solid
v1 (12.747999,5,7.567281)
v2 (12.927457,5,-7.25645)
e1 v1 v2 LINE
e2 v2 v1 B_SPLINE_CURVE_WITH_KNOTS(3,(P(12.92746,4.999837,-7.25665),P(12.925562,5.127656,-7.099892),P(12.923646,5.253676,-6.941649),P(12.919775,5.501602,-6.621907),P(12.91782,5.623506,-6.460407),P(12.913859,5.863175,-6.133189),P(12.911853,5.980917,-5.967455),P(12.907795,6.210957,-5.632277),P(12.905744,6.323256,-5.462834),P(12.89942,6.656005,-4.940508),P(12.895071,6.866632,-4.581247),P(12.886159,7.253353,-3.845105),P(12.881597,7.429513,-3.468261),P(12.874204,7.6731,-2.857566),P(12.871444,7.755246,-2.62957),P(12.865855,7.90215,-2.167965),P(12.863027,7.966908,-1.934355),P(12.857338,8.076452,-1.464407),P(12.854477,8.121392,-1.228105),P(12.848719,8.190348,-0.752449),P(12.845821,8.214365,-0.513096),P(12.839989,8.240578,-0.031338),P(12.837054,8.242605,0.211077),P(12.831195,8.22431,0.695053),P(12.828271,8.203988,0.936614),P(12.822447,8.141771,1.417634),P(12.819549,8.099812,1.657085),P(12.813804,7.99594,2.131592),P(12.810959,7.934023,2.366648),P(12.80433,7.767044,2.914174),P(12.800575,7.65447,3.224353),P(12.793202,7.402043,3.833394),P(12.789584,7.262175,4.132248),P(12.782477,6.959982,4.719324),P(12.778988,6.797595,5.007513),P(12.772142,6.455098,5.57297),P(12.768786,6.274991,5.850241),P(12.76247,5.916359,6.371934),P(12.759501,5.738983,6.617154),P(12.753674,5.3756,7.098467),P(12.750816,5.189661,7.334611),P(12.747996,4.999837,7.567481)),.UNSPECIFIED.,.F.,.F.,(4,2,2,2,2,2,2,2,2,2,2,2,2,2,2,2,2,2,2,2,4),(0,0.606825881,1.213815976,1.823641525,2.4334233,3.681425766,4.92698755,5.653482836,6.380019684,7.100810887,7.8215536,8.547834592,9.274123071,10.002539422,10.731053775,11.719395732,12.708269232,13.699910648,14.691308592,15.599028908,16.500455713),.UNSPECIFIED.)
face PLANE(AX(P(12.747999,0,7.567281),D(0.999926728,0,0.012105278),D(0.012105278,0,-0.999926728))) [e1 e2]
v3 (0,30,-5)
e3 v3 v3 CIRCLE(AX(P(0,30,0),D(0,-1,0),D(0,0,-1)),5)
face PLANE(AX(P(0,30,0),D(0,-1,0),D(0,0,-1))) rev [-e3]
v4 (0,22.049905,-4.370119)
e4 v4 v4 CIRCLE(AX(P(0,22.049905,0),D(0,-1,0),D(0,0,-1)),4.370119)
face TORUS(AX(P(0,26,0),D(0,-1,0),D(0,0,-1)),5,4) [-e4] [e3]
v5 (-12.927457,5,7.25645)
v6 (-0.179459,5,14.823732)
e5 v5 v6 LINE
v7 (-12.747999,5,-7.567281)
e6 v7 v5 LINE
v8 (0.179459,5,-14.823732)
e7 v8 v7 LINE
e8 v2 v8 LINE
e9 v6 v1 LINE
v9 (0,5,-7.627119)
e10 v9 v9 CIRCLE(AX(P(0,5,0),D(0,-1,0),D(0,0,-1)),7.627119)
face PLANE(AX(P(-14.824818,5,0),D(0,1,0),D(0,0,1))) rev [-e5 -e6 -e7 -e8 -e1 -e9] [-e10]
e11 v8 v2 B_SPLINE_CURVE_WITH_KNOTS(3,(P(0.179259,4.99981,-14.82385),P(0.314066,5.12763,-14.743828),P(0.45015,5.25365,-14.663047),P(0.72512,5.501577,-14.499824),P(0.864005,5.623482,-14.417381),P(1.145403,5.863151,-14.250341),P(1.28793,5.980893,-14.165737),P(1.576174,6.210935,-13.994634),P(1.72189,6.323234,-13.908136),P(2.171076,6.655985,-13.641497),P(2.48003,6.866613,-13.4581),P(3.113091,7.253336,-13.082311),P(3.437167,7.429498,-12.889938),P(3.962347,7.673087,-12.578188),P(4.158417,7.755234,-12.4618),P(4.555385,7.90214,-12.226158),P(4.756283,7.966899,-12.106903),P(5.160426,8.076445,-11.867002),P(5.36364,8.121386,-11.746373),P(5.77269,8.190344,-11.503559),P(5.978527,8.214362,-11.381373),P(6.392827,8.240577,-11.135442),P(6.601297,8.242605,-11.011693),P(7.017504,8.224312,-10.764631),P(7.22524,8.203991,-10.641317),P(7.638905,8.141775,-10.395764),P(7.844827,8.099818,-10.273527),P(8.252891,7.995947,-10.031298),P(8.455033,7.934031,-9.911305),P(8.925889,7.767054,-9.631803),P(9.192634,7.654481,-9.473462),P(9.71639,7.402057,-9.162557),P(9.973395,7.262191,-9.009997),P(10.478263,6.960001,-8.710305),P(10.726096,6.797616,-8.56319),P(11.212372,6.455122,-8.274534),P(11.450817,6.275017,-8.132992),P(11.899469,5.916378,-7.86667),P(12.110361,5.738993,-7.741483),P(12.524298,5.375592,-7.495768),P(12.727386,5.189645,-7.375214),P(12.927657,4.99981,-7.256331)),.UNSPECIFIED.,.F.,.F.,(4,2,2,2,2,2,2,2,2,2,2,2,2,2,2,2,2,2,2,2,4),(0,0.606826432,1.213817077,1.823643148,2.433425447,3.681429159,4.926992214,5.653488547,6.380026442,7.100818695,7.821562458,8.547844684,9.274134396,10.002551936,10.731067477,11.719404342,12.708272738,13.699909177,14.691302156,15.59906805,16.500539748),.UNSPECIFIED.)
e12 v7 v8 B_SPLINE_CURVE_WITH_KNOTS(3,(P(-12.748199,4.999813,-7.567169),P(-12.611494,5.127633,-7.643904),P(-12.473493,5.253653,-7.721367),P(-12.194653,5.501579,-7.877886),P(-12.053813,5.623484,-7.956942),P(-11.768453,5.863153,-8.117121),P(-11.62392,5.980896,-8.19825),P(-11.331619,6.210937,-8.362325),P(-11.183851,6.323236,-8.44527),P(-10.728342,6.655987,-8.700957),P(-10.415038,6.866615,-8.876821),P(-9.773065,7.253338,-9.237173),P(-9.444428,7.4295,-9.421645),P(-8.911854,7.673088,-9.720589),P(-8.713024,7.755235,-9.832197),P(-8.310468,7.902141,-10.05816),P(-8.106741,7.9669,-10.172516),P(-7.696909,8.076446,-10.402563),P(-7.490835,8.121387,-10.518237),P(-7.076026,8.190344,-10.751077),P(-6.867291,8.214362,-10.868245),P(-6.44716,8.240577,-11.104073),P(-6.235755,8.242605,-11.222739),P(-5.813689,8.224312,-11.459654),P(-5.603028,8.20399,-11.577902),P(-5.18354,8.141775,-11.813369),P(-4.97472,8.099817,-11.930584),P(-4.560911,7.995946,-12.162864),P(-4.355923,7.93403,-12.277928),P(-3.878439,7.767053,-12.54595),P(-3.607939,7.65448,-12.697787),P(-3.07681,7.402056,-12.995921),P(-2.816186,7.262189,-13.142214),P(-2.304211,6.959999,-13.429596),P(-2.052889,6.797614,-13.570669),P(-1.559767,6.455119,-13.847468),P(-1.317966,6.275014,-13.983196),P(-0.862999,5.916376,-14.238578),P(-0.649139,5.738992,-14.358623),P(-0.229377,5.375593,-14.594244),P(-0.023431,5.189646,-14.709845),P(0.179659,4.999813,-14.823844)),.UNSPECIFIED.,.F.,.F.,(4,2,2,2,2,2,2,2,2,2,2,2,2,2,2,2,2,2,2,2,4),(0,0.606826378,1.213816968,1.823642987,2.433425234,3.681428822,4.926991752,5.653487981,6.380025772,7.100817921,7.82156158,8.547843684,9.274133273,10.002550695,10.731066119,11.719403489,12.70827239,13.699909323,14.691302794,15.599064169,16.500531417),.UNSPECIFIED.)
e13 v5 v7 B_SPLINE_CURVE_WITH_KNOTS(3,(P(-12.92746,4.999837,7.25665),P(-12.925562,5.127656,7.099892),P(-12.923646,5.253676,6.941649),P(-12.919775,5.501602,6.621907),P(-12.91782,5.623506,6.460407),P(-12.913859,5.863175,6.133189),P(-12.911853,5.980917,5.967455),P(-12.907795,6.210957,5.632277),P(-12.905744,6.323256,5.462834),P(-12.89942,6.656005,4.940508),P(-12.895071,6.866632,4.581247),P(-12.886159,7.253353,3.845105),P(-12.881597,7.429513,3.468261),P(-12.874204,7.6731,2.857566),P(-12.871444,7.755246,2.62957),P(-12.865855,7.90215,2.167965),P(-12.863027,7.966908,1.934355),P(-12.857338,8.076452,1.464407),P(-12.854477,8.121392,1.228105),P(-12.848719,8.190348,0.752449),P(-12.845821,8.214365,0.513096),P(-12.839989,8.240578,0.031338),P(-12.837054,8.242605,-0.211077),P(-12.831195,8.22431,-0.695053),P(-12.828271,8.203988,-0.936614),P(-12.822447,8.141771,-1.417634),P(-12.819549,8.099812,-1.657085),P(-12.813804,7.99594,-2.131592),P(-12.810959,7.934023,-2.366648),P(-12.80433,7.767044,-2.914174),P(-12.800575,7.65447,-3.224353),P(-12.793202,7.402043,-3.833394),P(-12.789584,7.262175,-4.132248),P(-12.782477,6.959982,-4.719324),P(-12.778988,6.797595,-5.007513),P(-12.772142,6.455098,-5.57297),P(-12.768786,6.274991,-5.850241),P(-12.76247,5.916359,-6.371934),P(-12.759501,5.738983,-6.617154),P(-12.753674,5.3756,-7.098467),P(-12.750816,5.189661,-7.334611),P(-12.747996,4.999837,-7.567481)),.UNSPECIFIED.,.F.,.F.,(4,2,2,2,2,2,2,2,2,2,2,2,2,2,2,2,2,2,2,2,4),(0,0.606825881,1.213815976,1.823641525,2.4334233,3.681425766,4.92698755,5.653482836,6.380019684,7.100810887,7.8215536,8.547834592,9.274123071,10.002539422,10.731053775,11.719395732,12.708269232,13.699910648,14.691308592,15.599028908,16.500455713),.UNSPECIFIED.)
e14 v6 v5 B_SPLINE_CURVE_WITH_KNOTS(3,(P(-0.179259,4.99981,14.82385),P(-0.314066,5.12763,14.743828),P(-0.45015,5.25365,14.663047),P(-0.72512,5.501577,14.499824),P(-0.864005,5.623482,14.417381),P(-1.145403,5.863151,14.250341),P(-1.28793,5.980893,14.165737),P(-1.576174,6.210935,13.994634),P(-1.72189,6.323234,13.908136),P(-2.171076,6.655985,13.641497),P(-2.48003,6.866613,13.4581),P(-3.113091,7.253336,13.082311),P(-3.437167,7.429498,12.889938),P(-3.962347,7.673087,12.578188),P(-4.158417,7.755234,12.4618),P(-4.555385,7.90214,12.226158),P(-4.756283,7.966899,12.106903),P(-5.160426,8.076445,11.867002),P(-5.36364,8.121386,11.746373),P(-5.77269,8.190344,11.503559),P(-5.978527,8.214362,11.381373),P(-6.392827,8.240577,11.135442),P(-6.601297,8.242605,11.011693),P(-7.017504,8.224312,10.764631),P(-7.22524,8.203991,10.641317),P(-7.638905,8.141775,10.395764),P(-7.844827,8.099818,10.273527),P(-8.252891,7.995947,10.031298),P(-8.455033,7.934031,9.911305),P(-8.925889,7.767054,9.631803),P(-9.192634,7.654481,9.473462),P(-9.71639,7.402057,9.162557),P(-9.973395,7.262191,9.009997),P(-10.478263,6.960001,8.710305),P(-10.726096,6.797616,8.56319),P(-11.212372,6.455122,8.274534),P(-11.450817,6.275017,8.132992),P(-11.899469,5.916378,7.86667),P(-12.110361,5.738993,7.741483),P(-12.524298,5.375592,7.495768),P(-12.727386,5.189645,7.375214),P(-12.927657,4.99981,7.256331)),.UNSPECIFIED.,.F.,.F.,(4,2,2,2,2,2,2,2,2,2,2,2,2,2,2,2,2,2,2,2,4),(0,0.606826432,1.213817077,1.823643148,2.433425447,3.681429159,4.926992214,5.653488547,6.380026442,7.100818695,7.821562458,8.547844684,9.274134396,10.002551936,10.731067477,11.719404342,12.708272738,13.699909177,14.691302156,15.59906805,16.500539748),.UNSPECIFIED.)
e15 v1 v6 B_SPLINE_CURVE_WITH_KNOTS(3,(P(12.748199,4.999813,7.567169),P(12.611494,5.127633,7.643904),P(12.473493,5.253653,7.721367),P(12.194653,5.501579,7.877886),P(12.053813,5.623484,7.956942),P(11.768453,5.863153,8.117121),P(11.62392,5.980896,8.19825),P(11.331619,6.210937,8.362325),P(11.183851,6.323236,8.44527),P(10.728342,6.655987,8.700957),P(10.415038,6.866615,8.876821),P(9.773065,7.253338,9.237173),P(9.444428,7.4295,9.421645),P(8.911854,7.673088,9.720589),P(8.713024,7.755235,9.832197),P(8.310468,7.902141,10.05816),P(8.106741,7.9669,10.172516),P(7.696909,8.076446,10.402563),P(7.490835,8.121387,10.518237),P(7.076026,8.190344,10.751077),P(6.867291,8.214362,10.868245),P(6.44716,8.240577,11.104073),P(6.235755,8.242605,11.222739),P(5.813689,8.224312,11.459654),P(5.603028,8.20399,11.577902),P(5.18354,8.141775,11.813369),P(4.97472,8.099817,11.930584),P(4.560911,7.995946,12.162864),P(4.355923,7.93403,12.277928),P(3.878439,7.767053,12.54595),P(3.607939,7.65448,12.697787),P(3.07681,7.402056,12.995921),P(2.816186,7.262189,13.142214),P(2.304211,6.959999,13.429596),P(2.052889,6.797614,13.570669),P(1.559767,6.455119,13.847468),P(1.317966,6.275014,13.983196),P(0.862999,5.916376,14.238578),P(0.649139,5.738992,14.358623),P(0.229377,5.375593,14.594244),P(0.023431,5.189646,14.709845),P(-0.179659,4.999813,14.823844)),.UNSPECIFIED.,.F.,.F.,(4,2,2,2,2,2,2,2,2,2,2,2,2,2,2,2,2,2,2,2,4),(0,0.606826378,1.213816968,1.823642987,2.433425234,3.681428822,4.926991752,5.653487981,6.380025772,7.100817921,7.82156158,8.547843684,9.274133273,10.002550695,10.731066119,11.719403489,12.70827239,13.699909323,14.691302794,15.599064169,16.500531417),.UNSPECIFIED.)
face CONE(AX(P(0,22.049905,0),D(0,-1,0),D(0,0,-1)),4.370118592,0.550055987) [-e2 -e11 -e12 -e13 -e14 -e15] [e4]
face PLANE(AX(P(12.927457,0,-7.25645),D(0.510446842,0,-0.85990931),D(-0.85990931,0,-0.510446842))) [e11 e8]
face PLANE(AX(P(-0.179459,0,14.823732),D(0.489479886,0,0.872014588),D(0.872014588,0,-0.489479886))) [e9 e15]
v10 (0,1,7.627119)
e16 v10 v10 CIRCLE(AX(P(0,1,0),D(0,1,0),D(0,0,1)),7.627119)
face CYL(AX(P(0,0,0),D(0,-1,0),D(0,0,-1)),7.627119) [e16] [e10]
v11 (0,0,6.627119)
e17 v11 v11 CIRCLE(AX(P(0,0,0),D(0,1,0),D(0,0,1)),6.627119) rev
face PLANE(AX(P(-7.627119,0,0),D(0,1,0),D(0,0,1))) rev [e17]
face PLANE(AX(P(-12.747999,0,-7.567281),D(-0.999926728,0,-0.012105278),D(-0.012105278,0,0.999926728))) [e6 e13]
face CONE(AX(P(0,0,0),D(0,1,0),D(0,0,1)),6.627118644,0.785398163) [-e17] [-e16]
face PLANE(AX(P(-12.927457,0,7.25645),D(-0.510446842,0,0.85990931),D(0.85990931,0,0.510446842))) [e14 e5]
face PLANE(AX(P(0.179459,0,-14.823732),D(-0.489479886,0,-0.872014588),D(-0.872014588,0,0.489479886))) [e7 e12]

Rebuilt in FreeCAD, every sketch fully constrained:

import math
import FreeCAD as App
import Part
import Sketcher

V = App.Vector


def edges_at(feature, points):
    """Names of the edges that pass closest to the given points."""
    edges = feature.Shape.Edges
    near = lambda p: min(range(len(edges)), key=lambda i: edges[i].distToShape(Part.Vertex(*p))[0])
    return sorted({f"Edge{near(p) + 1}" for p in points})


def add_polygon(sketch, points):
    """Adds a closed chain of lines whose ends are joined by coincident constraints."""
    first, n = sketch.GeometryCount, len(points)
    for a, b in zip(points, points[1:] + points[:1]):
        sketch.addGeometry(Part.LineSegment(App.Vector(*a, 0), App.Vector(*b, 0)), False)
    for i in range(n):
        sketch.addConstraint(Sketcher.Constraint("Coincident", first + i, 2, first + (i + 1) % n, 1))

doc = App.newDocument("Part")
body = doc.addObject("PartDesign::Body", "Body")

# Sketch on XY plane
sketch1 = body.newObject("Sketcher::SketchObject", "Sketch")
sketch1.AttachmentSupport = (doc.getObject("XY_Plane"), [""])
sketch1.MapMode = "FlatFace"
sketch1.addGeometry([
    Part.LineSegment(V(0, 30, 0), V(-5, 30, 0)),  # 0
    Part.ArcOfCircle(Part.Circle(V(-5, 26, 0), V(0, 0, 1), 4), math.radians(90), math.radians(279)),  # 1
    Part.LineSegment(V(-4.4, 22, 0), V(-14.8, 5, 0)),  # 2
    Part.LineSegment(V(-14.8, 5, 0), V(-7.6, 5, 0)),  # 3
    Part.LineSegment(V(-7.6, 5, 0), V(-7.6, 0, 0)),  # 4
    Part.LineSegment(V(-7.6, 0, 0), V(0, 0, 0)),  # 5
    Part.LineSegment(V(0, 0, 0), V(0, 30, 0)),  # 6
], False)
sketch1.addConstraint([
    Sketcher.Constraint("Tangent", 0, 2, 1, 1),
    Sketcher.Constraint("Coincident", 1, 2, 2, 1),
    Sketcher.Constraint("Coincident", 2, 2, 3, 1),
    Sketcher.Constraint("Coincident", 3, 2, 4, 1),
    Sketcher.Constraint("Coincident", 4, 2, 5, 1),
    Sketcher.Constraint("Coincident", 5, 2, 6, 1),
    Sketcher.Constraint("Coincident", 6, 2, 0, 1),
    Sketcher.Constraint("Horizontal", 0),
    Sketcher.Constraint("Horizontal", 3),
    Sketcher.Constraint("Vertical", 4),
    Sketcher.Constraint("Horizontal", 5),
    Sketcher.Constraint("Vertical", 6),
    Sketcher.Constraint("Coincident", 5, 2, -1, 1),
    Sketcher.Constraint("Equal", 0, 4),
    Sketcher.Constraint("Radius", 1, 4.0),
    Sketcher.Constraint("DistanceX", 0, 2, 0, 1, 5.0),
    Sketcher.Constraint("DistanceY", 6, 1, 6, 2, 30.0),
    Sketcher.Constraint("Distance", 2, 20.0),
    Sketcher.Constraint("DistanceX", 3, 1, 3, 2, 7.197699),
    Sketcher.Constraint("DistanceX", 3, 2, 1, 2, 3.257),
])
revolution = body.newObject("PartDesign::Revolution", "Revolution")
revolution.Profile = sketch1
revolution.ReferenceAxis = (sketch1, ["V_Axis"])
revolution.Angle = 360

# Sketch on XZ plane
sketch2 = body.newObject("Sketcher::SketchObject", "Sketch001")
sketch2.AttachmentSupport = (doc.getObject("XZ_Plane"), [""])
sketch2.MapMode = "FlatFace"
sketch2.AttachmentOffset = App.Placement(V(0, 0, -30), App.Rotation())
add_polygon(sketch2, [(-21, -21), (-21, 21), (21, 21), (21, -21)])  # lines 0-3
add_polygon(sketch2, [(0, 15), (-13, 7), (-13, -8), (0, -15), (13, -7), (13, 8)])  # lines 4-9
sketch2.addConstraint([
    Sketcher.Constraint("Vertical", 0),
    Sketcher.Constraint("Horizontal", 1),
    Sketcher.Constraint("Vertical", 2),
    Sketcher.Constraint("Horizontal", 3),
    Sketcher.Constraint("Symmetric", 0, 2, 2, 2, -1, 1),
    Sketcher.Constraint("Symmetric", 4, 2, 7, 2, -1, 1),
    Sketcher.Constraint("Symmetric", 5, 2, 8, 2, -1, 1),
    Sketcher.Constraint("Symmetric", 6, 2, 9, 2, -1, 1),
    Sketcher.Constraint("Equal", 3, 0),
    Sketcher.Constraint("Equal", 4, 5),
    Sketcher.Constraint("Equal", 5, 6),
    Sketcher.Constraint("DistanceX", 1, 1, 1, 2, 41.962),
    Sketcher.Constraint("DistanceX", 5, 2, -1, 1, 12.747999),
    Sketcher.Constraint("DistanceX", 6, 2, 7, 2, 12.747999),
    Sketcher.Constraint("DistanceY", 7, 2, 4, 2, 14.5129),
    Sketcher.Constraint("DistanceY", 5, 2, -1, 1, 7.567281),
])
pocket1 = body.newObject("PartDesign::Pocket", "Pocket")
pocket1.Profile = sketch2
pocket1.Type = "ThroughAll"
pocket1.Reversed = True
doc.recompute()

chamfer = body.newObject("PartDesign::Chamfer", "Chamfer")
chamfer.Base = (pocket1, edges_at(pocket1, [(0, 0, 7.627)]))
chamfer.Size = 1

doc.recompute()
